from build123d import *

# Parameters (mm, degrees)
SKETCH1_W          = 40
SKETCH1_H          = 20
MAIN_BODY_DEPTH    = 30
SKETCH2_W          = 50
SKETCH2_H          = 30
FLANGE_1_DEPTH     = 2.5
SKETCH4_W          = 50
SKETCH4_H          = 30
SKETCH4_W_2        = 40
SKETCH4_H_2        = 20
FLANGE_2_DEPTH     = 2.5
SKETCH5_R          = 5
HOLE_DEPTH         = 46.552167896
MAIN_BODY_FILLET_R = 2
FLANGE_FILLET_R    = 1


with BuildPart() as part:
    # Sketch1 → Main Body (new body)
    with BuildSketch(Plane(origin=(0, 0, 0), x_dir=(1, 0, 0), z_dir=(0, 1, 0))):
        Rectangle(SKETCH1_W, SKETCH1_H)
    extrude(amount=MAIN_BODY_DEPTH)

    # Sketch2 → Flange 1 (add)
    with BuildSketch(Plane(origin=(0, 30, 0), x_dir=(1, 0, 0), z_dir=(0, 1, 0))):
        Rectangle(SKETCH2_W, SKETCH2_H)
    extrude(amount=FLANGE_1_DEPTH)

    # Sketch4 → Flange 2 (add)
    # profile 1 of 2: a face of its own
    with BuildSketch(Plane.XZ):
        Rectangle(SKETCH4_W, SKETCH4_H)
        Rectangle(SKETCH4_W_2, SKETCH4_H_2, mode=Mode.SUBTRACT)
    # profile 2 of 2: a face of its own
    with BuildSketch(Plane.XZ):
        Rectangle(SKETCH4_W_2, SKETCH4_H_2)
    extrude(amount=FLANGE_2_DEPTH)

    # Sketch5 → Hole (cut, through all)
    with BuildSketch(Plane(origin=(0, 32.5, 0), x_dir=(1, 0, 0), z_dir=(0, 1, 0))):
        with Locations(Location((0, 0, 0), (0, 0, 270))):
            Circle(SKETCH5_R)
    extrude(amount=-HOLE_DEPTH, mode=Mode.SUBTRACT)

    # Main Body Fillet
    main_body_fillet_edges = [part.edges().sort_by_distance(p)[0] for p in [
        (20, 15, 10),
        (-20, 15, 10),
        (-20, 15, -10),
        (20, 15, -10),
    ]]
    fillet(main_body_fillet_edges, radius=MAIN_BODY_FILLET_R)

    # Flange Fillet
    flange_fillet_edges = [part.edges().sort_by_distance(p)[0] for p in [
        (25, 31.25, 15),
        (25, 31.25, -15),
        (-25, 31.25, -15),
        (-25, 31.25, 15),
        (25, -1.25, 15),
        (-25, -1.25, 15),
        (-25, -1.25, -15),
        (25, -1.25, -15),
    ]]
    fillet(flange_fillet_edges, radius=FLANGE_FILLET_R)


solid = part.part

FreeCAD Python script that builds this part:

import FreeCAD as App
import Part
import Sketcher

V = App.Vector
Q = App.Units.Quantity


def edges_at(feature, points):
    """Names of the edges that pass closest to the given points."""
    edges = feature.Shape.Edges
    near = lambda p: min(range(len(edges)), key=lambda i: edges[i].distToShape(Part.Vertex(*p))[0])
    return sorted({f"Edge{near(p) + 1}" for p in points})

doc = App.newDocument("Part")
body = doc.addObject("PartDesign::Body", "Body")

# Sketch on XZ plane
sketch1 = body.newObject("Sketcher::SketchObject", "Sketch")
sketch1.AttachmentSupport = (doc.getObject("XZ_Plane"), [""])
sketch1.MapMode = "FlatFace"
sketch1.addGeometry(Part.LineSegment(V(-20, -10, 0), V(-20, 10, 0)), False)
sketch1.addGeometry(Part.LineSegment(V(-20, 10, 0), V(20, 10, 0)), False)
sketch1.addGeometry(Part.LineSegment(V(20, 10, 0), V(20, -10, 0)), False)
sketch1.addGeometry(Part.LineSegment(V(20, -10, 0), V(-20, -10, 0)), False)
sketch1.addConstraint(Sketcher.Constraint("Coincident", 0, 2, 1, 1))
sketch1.addConstraint(Sketcher.Constraint("Coincident", 1, 2, 2, 1))
sketch1.addConstraint(Sketcher.Constraint("Coincident", 2, 2, 3, 1))
sketch1.addConstraint(Sketcher.Constraint("Coincident", 3, 2, 0, 1))
sketch1.addConstraint(Sketcher.Constraint("Vertical", 0))
sketch1.addConstraint(Sketcher.Constraint("Horizontal", 1))
sketch1.addConstraint(Sketcher.Constraint("Vertical", 2))
sketch1.addConstraint(Sketcher.Constraint("Horizontal", 3))
sketch1.addConstraint(Sketcher.Constraint("Symmetric", 0, 2, 2, 2, -1, 1))
sketch1.addConstraint(Sketcher.Constraint("DistanceX", 1, 1, 1, 2, Q("40 mm")))
sketch1.addConstraint(Sketcher.Constraint("DistanceY", 0, 1, 0, 2, Q("20 mm")))
pad1 = body.newObject("PartDesign::Pad", "Pad")
pad1.Profile = sketch1
pad1.Length = 30
pad1.Reversed = True

# Sketch on XZ plane
sketch2 = body.newObject("Sketcher::SketchObject", "Sketch001")
sketch2.AttachmentSupport = (doc.getObject("XZ_Plane"), [""])
sketch2.MapMode = "FlatFace"
sketch2.AttachmentOffset = App.Placement(V(0, 0, -30), App.Rotation())
sketch2.addGeometry(Part.LineSegment(V(-25, -15, 0), V(-25, 15, 0)), False)
sketch2.addGeometry(Part.LineSegment(V(-25, 15, 0), V(25, 15, 0)), False)
sketch2.addGeometry(Part.LineSegment(V(25, 15, 0), V(25, -15, 0)), False)
sketch2.addGeometry(Part.LineSegment(V(25, -15, 0), V(-25, -15, 0)), False)
sketch2.addConstraint(Sketcher.Constraint("Coincident", 0, 2, 1, 1))
sketch2.addConstraint(Sketcher.Constraint("Coincident", 1, 2, 2, 1))
sketch2.addConstraint(Sketcher.Constraint("Coincident", 2, 2, 3, 1))
sketch2.addConstraint(Sketcher.Constraint("Coincident", 3, 2, 0, 1))
sketch2.addConstraint(Sketcher.Constraint("Vertical", 0))
sketch2.addConstraint(Sketcher.Constraint("Horizontal", 1))
sketch2.addConstraint(Sketcher.Constraint("Vertical", 2))
sketch2.addConstraint(Sketcher.Constraint("Horizontal", 3))
sketch2.addConstraint(Sketcher.Constraint("Symmetric", 0, 2, 2, 2, -1, 1))
sketch2.addConstraint(Sketcher.Constraint("DistanceX", 1, 1, 1, 2, Q("50 mm")))
sketch2.addConstraint(Sketcher.Constraint("DistanceY", 0, 1, 0, 2, Q("30 mm")))
pad2 = body.newObject("PartDesign::Pad", "Pad001")
pad2.Profile = sketch2
pad2.Length = 2.5
pad2.Reversed = True

# Sketch on XZ plane
sketch3 = body.newObject("Sketcher::SketchObject", "Sketch002")
sketch3.AttachmentSupport = (doc.getObject("XZ_Plane"), [""])
sketch3.MapMode = "FlatFace"
sketch3.addGeometry(Part.LineSegment(V(-25, 15, 0), V(-25, -15, 0)), False)
sketch3.addGeometry(Part.LineSegment(V(-25, -15, 0), V(25, -15, 0)), False)
sketch3.addGeometry(Part.LineSegment(V(25, -15, 0), V(25, 15, 0)), False)
sketch3.addGeometry(Part.LineSegment(V(25, 15, 0), V(-25, 15, 0)), False)
sketch3.addConstraint(Sketcher.Constraint("Coincident", 0, 2, 1, 1))
sketch3.addConstraint(Sketcher.Constraint("Coincident", 1, 2, 2, 1))
sketch3.addConstraint(Sketcher.Constraint("Coincident", 2, 2, 3, 1))
sketch3.addConstraint(Sketcher.Constraint("Coincident", 3, 2, 0, 1))
sketch3.addConstraint(Sketcher.Constraint("Vertical", 0))
sketch3.addConstraint(Sketcher.Constraint("Horizontal", 1))
sketch3.addConstraint(Sketcher.Constraint("Vertical", 2))
sketch3.addConstraint(Sketcher.Constraint("Horizontal", 3))
sketch3.addConstraint(Sketcher.Constraint("Symmetric", 0, 2, 2, 2, -1, 1))
sketch3.addConstraint(Sketcher.Constraint("DistanceX", 1, 1, 1, 2, Q("50 mm")))
sketch3.addConstraint(Sketcher.Constraint("DistanceY", 0, 2, 0, 1, Q("30 mm")))
pad3 = body.newObject("PartDesign::Pad", "Pad002")
pad3.Profile = sketch3
pad3.Length = 2.5

# Sketch on XZ plane
sketch4 = body.newObject("Sketcher::SketchObject", "Sketch003")
sketch4.AttachmentSupport = (doc.getObject("XZ_Plane"), [""])
sketch4.MapMode = "FlatFace"
sketch4.AttachmentOffset = App.Placement(V(0, 0, -32.5), App.Rotation())
sketch4.addGeometry(Part.Circle(V(0, 0, 0), V(0, 0, 1), 5), False)
sketch4.addConstraint(Sketcher.Constraint("Coincident", 0, 3, -1, 1))
sketch4.addConstraint(Sketcher.Constraint("Diameter", 0, Q("10 mm")))
pocket1 = body.newObject("PartDesign::Pocket", "Pocket")
pocket1.Profile = sketch4
pocket1.Type = "ThroughAll"
pocket1.Reversed = True
doc.recompute()

fillet = body.newObject("PartDesign::Fillet", "Fillet")
fillet.Base = (pocket1, edges_at(pocket1, [
    (20, 15, 10),
    (-20, 15, 10),
    (-20, 15, -10),
    (20, 15, -10),
]))
fillet.Radius = 2
doc.recompute()

fillet2 = body.newObject("PartDesign::Fillet", "Fillet001")
fillet2.Base = (fillet, edges_at(fillet, [
    (25, 31.25, 15),
    (25, 31.25, -15),
    (-25, 31.25, -15),
    (-25, 31.25, 15),
    (25, -1.25, 15),
    (-25, -1.25, 15),
    (-25, -1.25, -15),
    (25, -1.25, -15),
]))
fillet2.Radius = 1

doc.recompute()
